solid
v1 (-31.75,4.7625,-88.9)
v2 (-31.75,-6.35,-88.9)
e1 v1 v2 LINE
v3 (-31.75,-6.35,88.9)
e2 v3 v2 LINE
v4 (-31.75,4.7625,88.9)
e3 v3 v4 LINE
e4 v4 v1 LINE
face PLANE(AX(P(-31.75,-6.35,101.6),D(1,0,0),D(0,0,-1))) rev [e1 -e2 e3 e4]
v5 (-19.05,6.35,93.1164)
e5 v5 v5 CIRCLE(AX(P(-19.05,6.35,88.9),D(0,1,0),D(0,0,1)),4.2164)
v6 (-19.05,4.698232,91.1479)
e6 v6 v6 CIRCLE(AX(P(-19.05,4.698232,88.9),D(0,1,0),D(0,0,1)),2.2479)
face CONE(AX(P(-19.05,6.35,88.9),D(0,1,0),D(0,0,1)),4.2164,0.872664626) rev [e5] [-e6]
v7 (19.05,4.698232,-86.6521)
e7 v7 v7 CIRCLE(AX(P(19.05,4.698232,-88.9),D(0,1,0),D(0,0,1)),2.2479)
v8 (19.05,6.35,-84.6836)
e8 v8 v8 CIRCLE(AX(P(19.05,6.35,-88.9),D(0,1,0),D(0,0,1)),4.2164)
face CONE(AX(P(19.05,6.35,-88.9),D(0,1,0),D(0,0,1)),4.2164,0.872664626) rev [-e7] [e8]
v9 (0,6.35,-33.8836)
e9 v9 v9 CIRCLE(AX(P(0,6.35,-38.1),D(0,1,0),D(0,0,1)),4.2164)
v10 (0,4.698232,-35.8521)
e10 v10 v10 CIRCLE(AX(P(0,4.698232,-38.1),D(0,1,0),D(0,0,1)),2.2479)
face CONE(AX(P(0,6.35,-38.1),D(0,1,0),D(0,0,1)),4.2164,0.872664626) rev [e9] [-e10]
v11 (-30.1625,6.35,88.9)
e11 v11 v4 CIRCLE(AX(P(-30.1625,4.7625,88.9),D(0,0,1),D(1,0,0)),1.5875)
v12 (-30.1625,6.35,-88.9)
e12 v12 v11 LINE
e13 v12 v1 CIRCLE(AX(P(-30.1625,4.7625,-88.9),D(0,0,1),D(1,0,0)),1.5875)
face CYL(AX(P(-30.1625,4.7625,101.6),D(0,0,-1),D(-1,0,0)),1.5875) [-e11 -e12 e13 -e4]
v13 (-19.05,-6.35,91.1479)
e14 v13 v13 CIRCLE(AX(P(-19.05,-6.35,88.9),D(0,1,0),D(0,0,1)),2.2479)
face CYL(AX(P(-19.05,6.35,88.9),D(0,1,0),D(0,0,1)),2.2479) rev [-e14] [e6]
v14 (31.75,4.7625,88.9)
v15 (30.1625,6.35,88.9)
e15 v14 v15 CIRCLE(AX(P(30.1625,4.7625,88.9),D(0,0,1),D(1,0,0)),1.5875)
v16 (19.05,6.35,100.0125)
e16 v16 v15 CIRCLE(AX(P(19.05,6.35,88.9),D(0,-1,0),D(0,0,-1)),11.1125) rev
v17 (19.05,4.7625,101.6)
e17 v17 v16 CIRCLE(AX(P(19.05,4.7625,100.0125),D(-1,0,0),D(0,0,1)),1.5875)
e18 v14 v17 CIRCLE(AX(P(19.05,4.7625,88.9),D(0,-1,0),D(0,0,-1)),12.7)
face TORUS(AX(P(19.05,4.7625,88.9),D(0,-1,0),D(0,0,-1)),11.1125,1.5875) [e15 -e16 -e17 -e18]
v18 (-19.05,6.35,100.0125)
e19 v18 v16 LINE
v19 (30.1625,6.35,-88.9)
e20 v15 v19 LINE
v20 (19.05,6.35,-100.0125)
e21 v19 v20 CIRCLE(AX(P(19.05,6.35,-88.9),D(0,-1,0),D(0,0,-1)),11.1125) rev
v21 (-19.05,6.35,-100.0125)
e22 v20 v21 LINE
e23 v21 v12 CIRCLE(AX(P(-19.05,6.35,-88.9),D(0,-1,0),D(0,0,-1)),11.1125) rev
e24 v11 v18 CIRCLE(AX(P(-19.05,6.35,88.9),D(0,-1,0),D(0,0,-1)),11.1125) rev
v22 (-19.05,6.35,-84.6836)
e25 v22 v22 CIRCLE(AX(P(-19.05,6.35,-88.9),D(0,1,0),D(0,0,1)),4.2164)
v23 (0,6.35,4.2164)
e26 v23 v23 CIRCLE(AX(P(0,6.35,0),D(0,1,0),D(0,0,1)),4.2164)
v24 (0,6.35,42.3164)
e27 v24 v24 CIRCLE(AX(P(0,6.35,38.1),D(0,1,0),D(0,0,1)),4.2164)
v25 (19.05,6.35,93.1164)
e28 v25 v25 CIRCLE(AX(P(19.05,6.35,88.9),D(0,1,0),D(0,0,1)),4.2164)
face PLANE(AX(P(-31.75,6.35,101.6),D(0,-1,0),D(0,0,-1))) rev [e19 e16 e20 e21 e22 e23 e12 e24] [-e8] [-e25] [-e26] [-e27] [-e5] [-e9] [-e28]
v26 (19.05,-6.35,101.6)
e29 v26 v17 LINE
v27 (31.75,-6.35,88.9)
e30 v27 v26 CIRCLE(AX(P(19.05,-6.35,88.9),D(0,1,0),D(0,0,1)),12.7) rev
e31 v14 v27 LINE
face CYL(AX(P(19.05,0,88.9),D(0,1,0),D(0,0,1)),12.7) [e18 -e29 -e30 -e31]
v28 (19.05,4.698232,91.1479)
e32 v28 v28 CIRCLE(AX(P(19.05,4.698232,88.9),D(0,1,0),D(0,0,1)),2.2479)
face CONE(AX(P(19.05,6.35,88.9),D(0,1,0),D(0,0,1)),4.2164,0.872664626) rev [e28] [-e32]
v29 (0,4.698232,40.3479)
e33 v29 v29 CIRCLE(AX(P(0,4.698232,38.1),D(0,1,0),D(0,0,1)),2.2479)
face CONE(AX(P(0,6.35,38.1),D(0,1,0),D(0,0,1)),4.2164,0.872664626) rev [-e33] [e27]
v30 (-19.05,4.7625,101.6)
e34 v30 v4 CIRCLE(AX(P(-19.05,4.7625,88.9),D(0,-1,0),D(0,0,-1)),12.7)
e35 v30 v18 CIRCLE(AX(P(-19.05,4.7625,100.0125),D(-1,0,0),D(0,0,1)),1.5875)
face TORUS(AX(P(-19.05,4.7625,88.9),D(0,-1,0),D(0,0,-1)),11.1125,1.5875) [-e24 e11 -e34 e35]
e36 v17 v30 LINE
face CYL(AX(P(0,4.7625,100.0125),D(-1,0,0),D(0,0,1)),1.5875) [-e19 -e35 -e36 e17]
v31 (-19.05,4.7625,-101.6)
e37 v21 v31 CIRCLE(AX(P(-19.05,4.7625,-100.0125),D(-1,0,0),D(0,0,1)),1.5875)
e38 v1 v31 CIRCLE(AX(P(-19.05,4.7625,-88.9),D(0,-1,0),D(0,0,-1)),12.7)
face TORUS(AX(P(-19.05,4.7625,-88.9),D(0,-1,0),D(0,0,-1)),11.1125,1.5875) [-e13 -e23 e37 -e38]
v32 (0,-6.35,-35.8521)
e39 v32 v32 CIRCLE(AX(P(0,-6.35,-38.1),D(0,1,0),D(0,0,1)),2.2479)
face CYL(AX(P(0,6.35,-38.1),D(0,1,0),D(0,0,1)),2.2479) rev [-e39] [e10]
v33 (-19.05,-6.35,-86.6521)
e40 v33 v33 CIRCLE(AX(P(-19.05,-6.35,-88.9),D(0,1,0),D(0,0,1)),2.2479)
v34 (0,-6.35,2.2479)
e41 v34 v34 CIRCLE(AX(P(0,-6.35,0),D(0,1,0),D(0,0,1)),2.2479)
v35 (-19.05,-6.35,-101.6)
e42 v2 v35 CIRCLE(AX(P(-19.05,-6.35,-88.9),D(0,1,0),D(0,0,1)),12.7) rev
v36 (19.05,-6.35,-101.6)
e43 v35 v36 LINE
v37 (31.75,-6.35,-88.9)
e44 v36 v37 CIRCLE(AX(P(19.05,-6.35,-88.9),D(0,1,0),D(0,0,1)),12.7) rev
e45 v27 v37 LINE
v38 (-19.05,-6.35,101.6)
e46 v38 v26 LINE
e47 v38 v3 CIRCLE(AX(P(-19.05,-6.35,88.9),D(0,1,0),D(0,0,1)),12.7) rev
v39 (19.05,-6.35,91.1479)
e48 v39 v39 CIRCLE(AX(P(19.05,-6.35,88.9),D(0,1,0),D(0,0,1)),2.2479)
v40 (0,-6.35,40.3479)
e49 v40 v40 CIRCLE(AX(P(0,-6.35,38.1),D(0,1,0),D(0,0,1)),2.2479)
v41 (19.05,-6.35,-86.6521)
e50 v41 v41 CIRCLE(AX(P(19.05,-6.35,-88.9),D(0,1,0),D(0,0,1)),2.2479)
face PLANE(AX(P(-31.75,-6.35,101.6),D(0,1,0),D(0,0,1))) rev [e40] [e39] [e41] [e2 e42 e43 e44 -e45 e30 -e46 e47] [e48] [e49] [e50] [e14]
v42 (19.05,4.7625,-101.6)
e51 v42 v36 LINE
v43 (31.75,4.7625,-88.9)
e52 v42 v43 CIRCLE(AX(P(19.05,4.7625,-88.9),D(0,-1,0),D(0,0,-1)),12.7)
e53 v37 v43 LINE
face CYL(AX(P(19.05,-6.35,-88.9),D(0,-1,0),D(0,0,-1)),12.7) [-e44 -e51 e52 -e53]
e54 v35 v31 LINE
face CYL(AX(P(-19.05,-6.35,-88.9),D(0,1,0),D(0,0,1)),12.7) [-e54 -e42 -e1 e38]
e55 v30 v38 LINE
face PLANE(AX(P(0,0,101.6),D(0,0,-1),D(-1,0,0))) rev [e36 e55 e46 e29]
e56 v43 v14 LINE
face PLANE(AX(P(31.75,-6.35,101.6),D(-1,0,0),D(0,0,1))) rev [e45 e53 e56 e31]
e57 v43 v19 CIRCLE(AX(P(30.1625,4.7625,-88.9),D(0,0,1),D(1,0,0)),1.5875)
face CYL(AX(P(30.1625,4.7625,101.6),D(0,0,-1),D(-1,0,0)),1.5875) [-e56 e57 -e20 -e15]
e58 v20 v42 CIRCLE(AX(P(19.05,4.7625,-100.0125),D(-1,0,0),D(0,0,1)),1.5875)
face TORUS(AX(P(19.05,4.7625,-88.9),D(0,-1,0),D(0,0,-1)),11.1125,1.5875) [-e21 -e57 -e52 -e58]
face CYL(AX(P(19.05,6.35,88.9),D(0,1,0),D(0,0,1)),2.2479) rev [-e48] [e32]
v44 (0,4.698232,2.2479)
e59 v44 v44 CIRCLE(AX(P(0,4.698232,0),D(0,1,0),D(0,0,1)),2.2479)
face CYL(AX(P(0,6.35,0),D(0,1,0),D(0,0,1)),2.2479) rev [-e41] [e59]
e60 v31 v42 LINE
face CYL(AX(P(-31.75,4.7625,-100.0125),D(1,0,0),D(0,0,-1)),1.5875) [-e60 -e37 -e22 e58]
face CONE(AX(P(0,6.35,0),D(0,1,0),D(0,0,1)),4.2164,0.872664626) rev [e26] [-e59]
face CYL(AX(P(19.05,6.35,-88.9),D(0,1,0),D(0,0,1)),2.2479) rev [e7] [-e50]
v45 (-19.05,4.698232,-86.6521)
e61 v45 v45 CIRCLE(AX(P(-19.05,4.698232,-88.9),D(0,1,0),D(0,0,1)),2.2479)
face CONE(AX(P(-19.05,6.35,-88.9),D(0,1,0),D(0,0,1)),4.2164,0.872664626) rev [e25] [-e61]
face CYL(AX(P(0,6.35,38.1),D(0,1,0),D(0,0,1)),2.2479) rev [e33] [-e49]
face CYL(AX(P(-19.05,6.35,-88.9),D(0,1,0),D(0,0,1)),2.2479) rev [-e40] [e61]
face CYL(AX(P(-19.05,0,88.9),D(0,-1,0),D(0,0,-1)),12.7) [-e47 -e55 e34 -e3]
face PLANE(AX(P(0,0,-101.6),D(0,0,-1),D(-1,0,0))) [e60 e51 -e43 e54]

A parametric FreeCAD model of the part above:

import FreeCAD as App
import Part
import Sketcher

V = App.Vector
Q = App.Units.Quantity


def edges_at(feature, points):
    """Names of the edges that pass closest to the given points."""
    edges = feature.Shape.Edges
    near = lambda p: min(range(len(edges)), key=lambda i: edges[i].distToShape(Part.Vertex(*p))[0])
    return sorted({f"Edge{near(p) + 1}" for p in points})


def add_polygon(sketch, points):
    """Adds a closed chain of lines whose ends are joined by coincident constraints."""
    first, n = sketch.GeometryCount, len(points)
    for a, b in zip(points, points[1:] + points[:1]):
        sketch.addGeometry(Part.LineSegment(App.Vector(*a, 0), App.Vector(*b, 0)), False)
    for i in range(n):
        sketch.addConstraint(Sketcher.Constraint("Coincident", first + i, 2, first + (i + 1) % n, 1))

doc = App.newDocument("Part")
body = doc.addObject("PartDesign::Body", "Body")

# Sketch on XY plane
sketch1 = doc.addObject("Sketcher::SketchObject", "Sketch")
body.addObject(sketch1)
sketch1.AttachmentSupport = (doc.XY_Plane, [""])
sketch1.MapMode = "FlatFace"
add_polygon(sketch1, [(-32, 6), (-32, -6), (32, -6), (32, 6)])  # lines 0-3
sketch1.addConstraint([
    Sketcher.Constraint("Vertical", 0),
    Sketcher.Constraint("Horizontal", 1),
    Sketcher.Constraint("Vertical", 2),
    Sketcher.Constraint("Horizontal", 3),
    Sketcher.Constraint("Symmetric", 0, 2, 2, 2, -1, 1),
    Sketcher.Constraint("DistanceX", 1, 1, 1, 2, Q("2.5 in")),
    Sketcher.Constraint("DistanceY", 0, 2, 0, 1, Q("0.5 in")),
])
pad1 = doc.addObject("PartDesign::Pad", "Pad")
body.addObject(pad1)
pad1.Profile = sketch1
pad1.Length = Q("8 in")
pad1.Midplane = True
doc.recompute()

fillet = doc.addObject("PartDesign::Fillet", "Fillet")
body.addObject(fillet)
fillet.Base = (pad1, edges_at(pad1, [
    (-31.75, 0, 101.6),
    (31.75, 0, 101.6),
    (-31.75, 0, -101.6),
    (31.75, 0, -101.6),
]))
fillet.Radius = Q("0.5 in")

# Sketch on XZ plane
sketch2 = doc.addObject("Sketcher::SketchObject", "Sketch001")
body.addObject(sketch2)
sketch2.AttachmentSupport = (doc.XZ_Plane, [""])
sketch2.MapMode = "FlatFace"
sketch2.AttachmentOffset = App.Placement(V(0, 0, -0.25 * 25.4), App.Rotation())
sketch2.addGeometry([
    Part.Circle(V(19.1, 88.9, 0), V(0, 0, 1), 2.2),  # 0
    Part.Circle(V(-19.1, 88.9, 0), V(0, 0, 1), 2.2),  # 1
    Part.Circle(V(-19.1, -88.9, 0), V(0, 0, 1), 2.2),  # 2
    Part.Circle(V(19.1, -88.9, 0), V(0, 0, 1), 2.2),  # 3
    Part.Circle(V(0, 38.1, 0), V(0, 0, 1), 2.2),  # 4
    Part.Circle(V(0, -38.1, 0), V(0, 0, 1), 2.2),  # 5
    Part.Circle(V(0, 0, 0), V(0, 0, 1), 2.2),  # 6
], False)
sketch2.addConstraint([
    Sketcher.Constraint("Coincident", 6, 3, -1, 1),
    Sketcher.Constraint("Equal", 0, 1),
    Sketcher.Constraint("Equal", 1, 2),
    Sketcher.Constraint("Equal", 2, 3),
    Sketcher.Constraint("Equal", 3, 4),
    Sketcher.Constraint("Equal", 4, 5),
    Sketcher.Constraint("Equal", 5, 6),
    Sketcher.Constraint("Symmetric", 0, 3, 2, 3, -1, 1),
    Sketcher.Constraint("Symmetric", 1, 3, 3, 3, -1, 1),
    Sketcher.Constraint("Symmetric", 4, 3, 5, 3, -1, 1),
    Sketcher.Constraint("Symmetric", 0, 3, 1, 3, -2),
    Sketcher.Constraint("PointOnObject", 4, 3, -2),
    Sketcher.Constraint("Diameter", 0, Q("0.177 in")),
    Sketcher.Constraint("DistanceY", 2, 3, 1, 3, Q("7 in")),
    Sketcher.Constraint("DistanceY", 4, 3, 0, 3, Q("2 in")),
    Sketcher.Constraint("DistanceX", 1, 3, 0, 3, Q("1.5 in")),
])
doc.recompute()
hole = doc.addObject("PartDesign::Hole", "Hole")
body.addObject(hole)
hole.Profile = sketch2
hole.ThreadType = "None"
hole.Diameter = Q("0.177 in")
hole.DepthType = "ThroughAll"
hole.HoleCutType = "Countersink"
hole.HoleCutDiameter = Q("0.332 in")
hole.HoleCutCountersinkAngle = 100
hole.Reversed = True
doc.recompute()

fillet2 = doc.addObject("PartDesign::Fillet", "Fillet001")
body.addObject(fillet2)
fillet2.Base = (hole, edges_at(hole, [
    (-31.75, 6.35, 0),
    (0, 6.35, -101.6),
    (0, 6.35, 101.6),
    (31.75, 6.35, 0),
    (28.03, 6.35, 97.88),
    (-28.03, 6.35, 97.88),
    (28.03, 6.35, -97.88),
    (-28.03, 6.35, -97.88),
]))
fillet2.Radius = Q("0.0625 in")

doc.recompute()
